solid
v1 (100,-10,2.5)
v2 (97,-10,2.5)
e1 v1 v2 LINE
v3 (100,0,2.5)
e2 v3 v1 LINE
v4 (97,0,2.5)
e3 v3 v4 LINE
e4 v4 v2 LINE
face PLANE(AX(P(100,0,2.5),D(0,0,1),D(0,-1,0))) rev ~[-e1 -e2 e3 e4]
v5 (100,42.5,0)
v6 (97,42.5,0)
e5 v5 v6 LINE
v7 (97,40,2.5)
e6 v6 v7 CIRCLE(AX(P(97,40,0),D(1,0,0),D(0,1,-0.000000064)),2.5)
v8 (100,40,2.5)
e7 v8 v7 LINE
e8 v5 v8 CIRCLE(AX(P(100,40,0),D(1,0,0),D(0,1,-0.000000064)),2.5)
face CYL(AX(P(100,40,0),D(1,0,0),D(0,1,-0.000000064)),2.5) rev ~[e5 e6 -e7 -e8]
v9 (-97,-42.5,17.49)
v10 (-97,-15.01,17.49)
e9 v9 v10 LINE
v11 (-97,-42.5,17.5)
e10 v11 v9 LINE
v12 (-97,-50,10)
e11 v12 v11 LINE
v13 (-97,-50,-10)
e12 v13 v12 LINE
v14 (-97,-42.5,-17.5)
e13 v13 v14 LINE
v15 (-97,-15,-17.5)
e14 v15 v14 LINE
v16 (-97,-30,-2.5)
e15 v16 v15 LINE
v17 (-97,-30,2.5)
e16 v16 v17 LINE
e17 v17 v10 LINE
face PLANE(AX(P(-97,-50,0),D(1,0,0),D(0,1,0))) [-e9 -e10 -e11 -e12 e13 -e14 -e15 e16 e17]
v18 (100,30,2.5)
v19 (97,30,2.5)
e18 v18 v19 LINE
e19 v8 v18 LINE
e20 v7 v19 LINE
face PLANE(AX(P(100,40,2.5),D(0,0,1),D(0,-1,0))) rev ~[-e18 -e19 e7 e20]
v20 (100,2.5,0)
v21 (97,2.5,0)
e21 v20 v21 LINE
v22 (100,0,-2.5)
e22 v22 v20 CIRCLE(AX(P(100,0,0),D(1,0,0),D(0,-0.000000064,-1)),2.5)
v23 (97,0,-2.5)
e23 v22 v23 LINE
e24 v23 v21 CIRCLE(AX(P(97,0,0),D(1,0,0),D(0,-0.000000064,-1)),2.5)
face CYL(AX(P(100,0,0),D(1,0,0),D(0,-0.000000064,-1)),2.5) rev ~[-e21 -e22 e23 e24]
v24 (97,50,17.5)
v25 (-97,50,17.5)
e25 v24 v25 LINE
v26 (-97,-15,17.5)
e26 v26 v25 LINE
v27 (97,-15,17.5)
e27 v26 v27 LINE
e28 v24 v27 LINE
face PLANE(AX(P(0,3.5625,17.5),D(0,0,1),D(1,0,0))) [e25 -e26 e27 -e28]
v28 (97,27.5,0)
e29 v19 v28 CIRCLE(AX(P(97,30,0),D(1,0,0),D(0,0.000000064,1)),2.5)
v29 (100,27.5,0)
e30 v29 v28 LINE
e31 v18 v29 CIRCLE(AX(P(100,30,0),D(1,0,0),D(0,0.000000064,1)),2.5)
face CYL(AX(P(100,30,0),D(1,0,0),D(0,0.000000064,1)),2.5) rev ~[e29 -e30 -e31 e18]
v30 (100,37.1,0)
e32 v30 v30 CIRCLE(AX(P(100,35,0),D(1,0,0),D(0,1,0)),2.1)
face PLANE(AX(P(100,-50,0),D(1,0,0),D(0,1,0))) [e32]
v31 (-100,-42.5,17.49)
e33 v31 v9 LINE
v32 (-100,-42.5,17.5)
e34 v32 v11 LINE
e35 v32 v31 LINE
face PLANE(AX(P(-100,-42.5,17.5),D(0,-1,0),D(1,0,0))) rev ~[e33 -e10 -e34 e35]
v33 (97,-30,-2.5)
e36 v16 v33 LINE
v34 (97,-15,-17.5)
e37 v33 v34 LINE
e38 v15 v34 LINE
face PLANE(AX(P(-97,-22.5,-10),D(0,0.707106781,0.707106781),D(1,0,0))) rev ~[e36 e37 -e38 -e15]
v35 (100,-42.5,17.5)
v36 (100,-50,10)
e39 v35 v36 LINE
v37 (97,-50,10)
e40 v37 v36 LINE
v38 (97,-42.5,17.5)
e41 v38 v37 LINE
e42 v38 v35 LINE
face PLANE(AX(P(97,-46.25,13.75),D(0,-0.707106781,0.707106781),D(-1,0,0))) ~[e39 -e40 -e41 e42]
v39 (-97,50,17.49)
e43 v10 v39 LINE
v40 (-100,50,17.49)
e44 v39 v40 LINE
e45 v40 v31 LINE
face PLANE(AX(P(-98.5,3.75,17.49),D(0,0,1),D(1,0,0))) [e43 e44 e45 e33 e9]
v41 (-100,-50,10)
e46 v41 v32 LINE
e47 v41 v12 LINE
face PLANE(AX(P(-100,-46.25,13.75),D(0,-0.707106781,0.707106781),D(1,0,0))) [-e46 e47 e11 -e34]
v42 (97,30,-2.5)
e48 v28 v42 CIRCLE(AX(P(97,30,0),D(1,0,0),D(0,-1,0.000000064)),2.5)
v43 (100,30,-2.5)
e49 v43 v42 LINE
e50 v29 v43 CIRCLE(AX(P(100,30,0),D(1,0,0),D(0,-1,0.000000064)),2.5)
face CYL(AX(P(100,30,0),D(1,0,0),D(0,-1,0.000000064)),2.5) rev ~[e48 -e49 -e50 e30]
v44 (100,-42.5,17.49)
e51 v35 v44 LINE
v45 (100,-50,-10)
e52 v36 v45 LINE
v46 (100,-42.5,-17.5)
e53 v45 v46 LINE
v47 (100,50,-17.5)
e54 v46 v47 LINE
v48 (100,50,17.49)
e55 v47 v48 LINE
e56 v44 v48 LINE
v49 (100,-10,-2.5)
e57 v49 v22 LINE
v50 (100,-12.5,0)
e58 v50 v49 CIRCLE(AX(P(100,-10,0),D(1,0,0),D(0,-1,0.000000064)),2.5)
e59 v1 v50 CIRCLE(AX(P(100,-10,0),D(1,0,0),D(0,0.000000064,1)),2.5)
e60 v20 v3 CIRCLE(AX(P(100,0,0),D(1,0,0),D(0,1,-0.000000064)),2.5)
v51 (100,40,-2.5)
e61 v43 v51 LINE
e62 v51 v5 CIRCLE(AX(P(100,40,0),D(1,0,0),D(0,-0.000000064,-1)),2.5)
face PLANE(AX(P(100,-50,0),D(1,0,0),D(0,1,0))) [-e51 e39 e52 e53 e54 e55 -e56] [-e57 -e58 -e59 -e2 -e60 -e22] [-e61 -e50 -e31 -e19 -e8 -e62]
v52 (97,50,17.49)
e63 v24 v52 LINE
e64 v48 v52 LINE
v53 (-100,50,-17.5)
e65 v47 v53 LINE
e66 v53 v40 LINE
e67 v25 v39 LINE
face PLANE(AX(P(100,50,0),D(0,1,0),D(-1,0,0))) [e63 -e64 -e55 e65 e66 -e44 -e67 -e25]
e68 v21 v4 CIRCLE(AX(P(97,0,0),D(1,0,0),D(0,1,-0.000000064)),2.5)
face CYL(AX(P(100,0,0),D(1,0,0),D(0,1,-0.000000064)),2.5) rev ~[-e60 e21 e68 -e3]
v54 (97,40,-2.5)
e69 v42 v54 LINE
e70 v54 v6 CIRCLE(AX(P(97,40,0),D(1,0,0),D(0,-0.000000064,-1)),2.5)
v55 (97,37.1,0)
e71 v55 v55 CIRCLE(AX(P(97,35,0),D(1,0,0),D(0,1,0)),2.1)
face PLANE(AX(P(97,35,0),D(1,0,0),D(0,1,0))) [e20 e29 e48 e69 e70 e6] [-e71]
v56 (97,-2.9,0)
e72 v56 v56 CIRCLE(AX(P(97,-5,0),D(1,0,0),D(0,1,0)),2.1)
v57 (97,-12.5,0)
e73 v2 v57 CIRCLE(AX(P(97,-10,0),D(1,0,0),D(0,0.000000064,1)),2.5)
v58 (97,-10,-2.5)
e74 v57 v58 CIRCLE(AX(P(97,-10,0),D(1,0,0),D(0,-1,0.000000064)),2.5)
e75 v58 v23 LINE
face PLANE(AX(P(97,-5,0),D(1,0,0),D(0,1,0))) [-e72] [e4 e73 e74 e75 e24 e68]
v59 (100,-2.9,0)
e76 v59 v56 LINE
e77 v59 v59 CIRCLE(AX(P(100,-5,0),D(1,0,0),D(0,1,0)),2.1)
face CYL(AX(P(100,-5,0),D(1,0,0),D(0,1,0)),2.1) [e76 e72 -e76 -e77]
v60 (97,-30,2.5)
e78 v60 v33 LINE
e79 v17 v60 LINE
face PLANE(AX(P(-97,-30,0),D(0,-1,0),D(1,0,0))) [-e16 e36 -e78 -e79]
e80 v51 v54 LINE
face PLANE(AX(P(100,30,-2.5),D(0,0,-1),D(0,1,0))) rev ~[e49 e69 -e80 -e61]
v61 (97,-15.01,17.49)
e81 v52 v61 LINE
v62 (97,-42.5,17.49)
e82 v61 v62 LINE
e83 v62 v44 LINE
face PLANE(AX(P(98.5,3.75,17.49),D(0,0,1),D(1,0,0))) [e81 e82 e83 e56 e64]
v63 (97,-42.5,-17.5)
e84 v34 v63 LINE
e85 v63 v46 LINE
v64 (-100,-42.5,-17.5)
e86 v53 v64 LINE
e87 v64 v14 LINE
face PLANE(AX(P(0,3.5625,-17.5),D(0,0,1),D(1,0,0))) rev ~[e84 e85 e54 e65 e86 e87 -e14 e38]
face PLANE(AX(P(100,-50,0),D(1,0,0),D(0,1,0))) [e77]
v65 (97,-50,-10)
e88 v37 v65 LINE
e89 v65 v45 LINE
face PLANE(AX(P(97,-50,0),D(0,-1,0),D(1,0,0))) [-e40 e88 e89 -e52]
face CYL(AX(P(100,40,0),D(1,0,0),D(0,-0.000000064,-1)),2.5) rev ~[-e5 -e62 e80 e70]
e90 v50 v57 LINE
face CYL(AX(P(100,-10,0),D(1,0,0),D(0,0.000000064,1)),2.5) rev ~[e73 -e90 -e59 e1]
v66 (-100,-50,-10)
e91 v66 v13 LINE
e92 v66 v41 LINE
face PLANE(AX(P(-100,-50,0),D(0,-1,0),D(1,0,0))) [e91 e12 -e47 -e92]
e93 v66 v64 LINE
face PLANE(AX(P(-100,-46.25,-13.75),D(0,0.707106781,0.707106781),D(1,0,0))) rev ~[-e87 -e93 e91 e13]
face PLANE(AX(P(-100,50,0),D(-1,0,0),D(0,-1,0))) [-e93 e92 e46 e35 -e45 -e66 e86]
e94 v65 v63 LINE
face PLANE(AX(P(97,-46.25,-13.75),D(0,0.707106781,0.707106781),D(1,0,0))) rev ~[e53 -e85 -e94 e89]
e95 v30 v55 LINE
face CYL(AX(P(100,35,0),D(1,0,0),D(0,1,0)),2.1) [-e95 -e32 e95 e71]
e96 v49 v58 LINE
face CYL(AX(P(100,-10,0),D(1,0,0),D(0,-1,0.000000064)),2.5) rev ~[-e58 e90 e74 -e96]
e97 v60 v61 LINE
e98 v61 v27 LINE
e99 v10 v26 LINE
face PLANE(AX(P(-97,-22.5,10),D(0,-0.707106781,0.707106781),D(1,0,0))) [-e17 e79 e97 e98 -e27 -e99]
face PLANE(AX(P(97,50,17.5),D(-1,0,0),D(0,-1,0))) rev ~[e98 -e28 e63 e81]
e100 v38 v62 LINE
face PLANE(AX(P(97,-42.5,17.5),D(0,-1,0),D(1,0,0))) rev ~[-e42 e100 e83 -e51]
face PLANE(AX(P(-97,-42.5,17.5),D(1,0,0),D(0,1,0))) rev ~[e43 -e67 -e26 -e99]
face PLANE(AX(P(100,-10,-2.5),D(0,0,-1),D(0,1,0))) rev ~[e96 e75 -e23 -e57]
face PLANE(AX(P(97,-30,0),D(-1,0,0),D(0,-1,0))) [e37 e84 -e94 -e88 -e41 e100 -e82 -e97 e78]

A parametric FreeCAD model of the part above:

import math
import FreeCAD as App
import Part
import Sketcher
from FreeCAD import Vector


def edges_at(feature, points):
    """Names of the edges that pass closest to the given points."""
    edges = feature.Shape.Edges
    near = lambda p: min(range(len(edges)), key=lambda i: edges[i].distToShape(Part.Vertex(*p))[0])
    return sorted({f"Edge{near(p) + 1}" for p in points})


def add_polygon(sketch, points):
    """Adds a closed chain of lines whose ends are joined by coincident constraints."""
    first, n = sketch.GeometryCount, len(points)
    for a, b in zip(points, points[1:] + points[:1]):
        sketch.addGeometry(Part.LineSegment(App.Vector(*a, 0), App.Vector(*b, 0)), False)
    for i in range(n):
        sketch.addConstraint(Sketcher.Constraint("Coincident", first + i, 2, first + (i + 1) % n, 1))

doc = App.newDocument("Part")
body = doc.addObject("PartDesign::Body", "Body")

# Sketch on XY plane
sketch1 = doc.addObject("Sketcher::SketchObject", "Sketch")
body.addObject(sketch1)
sketch1.AttachmentSupport = (doc.XY_Plane, [""])
sketch1.MapMode = "FlatFace"
add_polygon(sketch1, [(100, -50), (100, 50), (-100, 50), (-100, -50), (-97, -50), (-97, -30), (97, -30), (97, -50)])  # lines 0-7
sketch1.addConstraint([
    Sketcher.Constraint("Vertical", 0),
    Sketcher.Constraint("Horizontal", 1),
    Sketcher.Constraint("Vertical", 2),
    Sketcher.Constraint("Horizontal", 3),
    Sketcher.Constraint("Vertical", 4),
    Sketcher.Constraint("Horizontal", 5),
    Sketcher.Constraint("Vertical", 6),
    Sketcher.Constraint("Horizontal", 7),
    Sketcher.Constraint("Symmetric", 0, 2, 2, 2, -1, 1),
    Sketcher.Constraint("Symmetric", 3, 2, 6, 2, -2),
    Sketcher.Constraint("DistanceX", 1, 2, 1, 1, 200.0),
    Sketcher.Constraint("DistanceX", 3, 1, 3, 2, 3.0),
    Sketcher.Constraint("DistanceY", 0, 1, 0, 2, 100.0),
    Sketcher.Constraint("DistanceY", 4, 1, 4, 2, 20.0),
])
pad1 = doc.addObject("PartDesign::Pad", "Pad")
body.addObject(pad1)
pad1.Profile = sketch1
pad1.Type = "TwoLengths"
pad1.Length = 17.5
pad1.Length2 = 17.5
doc.recompute()

chamfer = doc.addObject("PartDesign::Chamfer", "Chamfer")
body.addObject(chamfer)
chamfer.Base = (pad1, edges_at(pad1, [(0, -30, 17.5), (0, -30, -17.5)]))
chamfer.Size = 15
doc.recompute()

chamfer2 = doc.addObject("PartDesign::Chamfer", "Chamfer001")
body.addObject(chamfer2)
chamfer2.Base = (chamfer, edges_at(chamfer, [
    (98.5, -50, 17.5),
    (98.5, -50, -17.5),
    (-98.5, -50, 17.5),
    (-98.5, -50, -17.5),
]))
chamfer2.Size = 7.5

# Sketch on YZ plane
sketch2 = doc.addObject("Sketcher::SketchObject", "Sketch001")
body.addObject(sketch2)
sketch2.AttachmentSupport = (doc.YZ_Plane, [""])
sketch2.MapMode = "FlatFace"
sketch2.AttachmentOffset = App.Placement(Vector(0, 0, 100), App.Rotation())
sketch2.addGeometry([
    Part.ArcOfCircle(Part.Circle(Vector(40, 0, 0), Vector(0, 0, 1), 2.5), math.radians(0), math.radians(90)),  # 0
    Part.LineSegment(Vector(40, 2.5, 0), Vector(30, 2.5, 0)),  # 1
    Part.ArcOfCircle(Part.Circle(Vector(30, 0, 0), Vector(0, 0, 1), 2.5), math.radians(90), math.radians(180)),  # 2
    Part.ArcOfCircle(Part.Circle(Vector(30, 0, 0), Vector(0, 0, 1), 2.5), math.radians(180), math.radians(270)),  # 3
    Part.LineSegment(Vector(30, -2.5, 0), Vector(40, -2.5, 0)),  # 4
    Part.ArcOfCircle(Part.Circle(Vector(40, 0, 0), Vector(0, 0, 1), 2.5), math.radians(-90), math.radians(0)),  # 5
    Part.Circle(Vector(35, 0, 0), Vector(0, 0, 1), 2.1),  # 6
    Part.ArcOfCircle(Part.Circle(Vector(0, 0, 0), Vector(0, 0, 1), 2.5), math.radians(0), math.radians(90)),  # 7
    Part.LineSegment(Vector(0, 2.5, 0), Vector(-10, 2.5, 0)),  # 8
    Part.ArcOfCircle(Part.Circle(Vector(-10, 0, 0), Vector(0, 0, 1), 2.5), math.radians(90), math.radians(180)),  # 9
    Part.ArcOfCircle(Part.Circle(Vector(-10, 0, 0), Vector(0, 0, 1), 2.5), math.radians(180), math.radians(270)),  # 10
    Part.LineSegment(Vector(-10, -2.5, 0), Vector(0, -2.5, 0)),  # 11
    Part.ArcOfCircle(Part.Circle(Vector(0, 0, 0), Vector(0, 0, 1), 2.5), math.radians(-90), math.radians(0)),  # 12
    Part.Circle(Vector(-5, 0, 0), Vector(0, 0, 1), 2.1),  # 13
], False)
sketch2.addConstraint([
    Sketcher.Constraint("Tangent", 0, 2, 1, 1),
    Sketcher.Constraint("Tangent", 1, 2, 2, 1),
    Sketcher.Constraint("Tangent", 2, 2, 3, 1),
    Sketcher.Constraint("Tangent", 3, 2, 4, 1),
    Sketcher.Constraint("Tangent", 4, 2, 5, 1),
    Sketcher.Constraint("Tangent", 5, 2, 0, 1),
    Sketcher.Constraint("Tangent", 7, 2, 8, 1),
    Sketcher.Constraint("Tangent", 8, 2, 9, 1),
    Sketcher.Constraint("Tangent", 9, 2, 10, 1),
    Sketcher.Constraint("Tangent", 10, 2, 11, 1),
    Sketcher.Constraint("Tangent", 11, 2, 12, 1),
    Sketcher.Constraint("Tangent", 12, 2, 7, 1),
    Sketcher.Constraint("Horizontal", 1),
    Sketcher.Constraint("Horizontal", 4),
    Sketcher.Constraint("Horizontal", 8),
    Sketcher.Constraint("Horizontal", 11),
    Sketcher.Constraint("Coincident", 7, 3, -1, 1),
    Sketcher.Constraint("Equal", 0, 2),
    Sketcher.Constraint("Equal", 2, 3),
    Sketcher.Constraint("Equal", 5, 7),
    Sketcher.Constraint("Equal", 7, 9),
    Sketcher.Constraint("Equal", 9, 10),
    Sketcher.Constraint("Equal", 6, 13),
    Sketcher.Constraint("PointOnObject", 0, 3, -1),
    Sketcher.Constraint("PointOnObject", 6, 3, -1),
    Sketcher.Constraint("PointOnObject", 13, 3, -1),
    Sketcher.Constraint("PointOnObject", 2, 2, -1),
    Sketcher.Constraint("PointOnObject", 5, 2, -1),
    Sketcher.Constraint("PointOnObject", 9, 2, -1),
    Sketcher.Constraint("PointOnObject", 12, 2, -1),
    Sketcher.Constraint("Equal", 4, 8),
    Sketcher.Constraint("Diameter", 6, 4.2),
    Sketcher.Constraint("Radius", 0, 2.5),
    Sketcher.Constraint("DistanceX", 1, 2, 1, 1, 10.0),
    Sketcher.Constraint("DistanceX", -1, 1, 0, 3, 40.0),
    Sketcher.Constraint("DistanceX", -1, 1, 6, 3, 35.0),
    Sketcher.Constraint("DistanceX", 13, 3, -1, 1, 5.0),
])
pocket1 = doc.addObject("PartDesign::Pocket", "Pocket")
body.addObject(pocket1)
pocket1.Profile = sketch2
pocket1.Length = 3

# Sketch on XY plane
sketch3 = doc.addObject("Sketcher::SketchObject", "Sketch002")
body.addObject(sketch3)
sketch3.AttachmentSupport = (doc.XY_Plane, [""])
sketch3.MapMode = "FlatFace"
sketch3.AttachmentOffset = App.Placement(Vector(0, 0, 17.5), App.Rotation())
add_polygon(sketch3, [(100, 50), (97, 50), (97, -42.5), (100, -42.5)])  # lines 0-3
add_polygon(sketch3, [(-97, 50), (-100, 50), (-100, -42.5), (-97, -42.5)])  # lines 4-7
sketch3.addConstraint([
    Sketcher.Constraint("Horizontal", 0),
    Sketcher.Constraint("Vertical", 1),
    Sketcher.Constraint("Horizontal", 2),
    Sketcher.Constraint("Vertical", 3),
    Sketcher.Constraint("Horizontal", 4),
    Sketcher.Constraint("Vertical", 5),
    Sketcher.Constraint("Horizontal", 6),
    Sketcher.Constraint("Vertical", 7),
    Sketcher.Constraint("Symmetric", 3, 2, 4, 2, -2),
    Sketcher.Constraint("Symmetric", 1, 2, 6, 2, -2),
    Sketcher.Constraint("DistanceX", 0, 2, 0, 1, 3.0),
    Sketcher.Constraint("DistanceY", 1, 2, 1, 1, 92.5),
    Sketcher.Constraint("DistanceX", -1, 1, 0, 2, 97.0),
    Sketcher.Constraint("DistanceY", -1, 1, 0, 2, 50.0),
])
pocket2 = doc.addObject("PartDesign::Pocket", "Pocket001")
body.addObject(pocket2)
pocket2.Profile = sketch3
pocket2.Length = 0.01

doc.recompute()
